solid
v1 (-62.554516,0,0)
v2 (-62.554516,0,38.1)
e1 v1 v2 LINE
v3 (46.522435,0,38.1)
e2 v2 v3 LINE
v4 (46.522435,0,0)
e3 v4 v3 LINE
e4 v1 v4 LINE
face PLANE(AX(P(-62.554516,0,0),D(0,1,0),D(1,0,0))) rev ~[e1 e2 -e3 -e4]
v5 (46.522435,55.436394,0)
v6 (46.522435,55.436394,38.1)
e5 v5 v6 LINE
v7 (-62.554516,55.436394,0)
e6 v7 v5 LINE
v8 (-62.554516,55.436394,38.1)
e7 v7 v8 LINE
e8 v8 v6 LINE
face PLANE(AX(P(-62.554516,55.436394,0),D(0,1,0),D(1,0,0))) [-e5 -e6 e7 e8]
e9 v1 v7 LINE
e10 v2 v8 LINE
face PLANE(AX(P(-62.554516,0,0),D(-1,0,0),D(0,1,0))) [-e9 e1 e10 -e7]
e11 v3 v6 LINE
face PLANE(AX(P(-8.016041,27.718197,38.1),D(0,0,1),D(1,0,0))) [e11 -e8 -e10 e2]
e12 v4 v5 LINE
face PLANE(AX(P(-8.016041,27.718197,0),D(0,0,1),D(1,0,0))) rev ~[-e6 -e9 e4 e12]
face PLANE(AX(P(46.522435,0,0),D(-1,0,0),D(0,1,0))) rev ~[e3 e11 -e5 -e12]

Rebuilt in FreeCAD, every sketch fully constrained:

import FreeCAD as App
import Part
import Sketcher
Q = App.Units.Quantity


def add_polygon(sketch, points):
    """Adds a closed chain of lines whose ends are joined by coincident constraints."""
    first, n = sketch.GeometryCount, len(points)
    for a, b in zip(points, points[1:] + points[:1]):
        sketch.addGeometry(Part.LineSegment(App.Vector(*a, 0), App.Vector(*b, 0)), False)
    for i in range(n):
        sketch.addConstraint(Sketcher.Constraint("Coincident", first + i, 2, first + (i + 1) % n, 1))

doc = App.newDocument("Part")
body = doc.addObject("PartDesign::Body", "Body")

# Sketch on XY plane
sketch1 = body.newObject("Sketcher::SketchObject", "Sketch")
sketch1.AttachmentSupport = (doc.getObject("XY_Plane"), [""])
sketch1.MapMode = "FlatFace"
add_polygon(sketch1, [(-63, 55), (-63, 0), (47, 0), (47, 55)])  # lines 0-3
sketch1.addConstraint(Sketcher.Constraint("Vertical", 0))
sketch1.addConstraint(Sketcher.Constraint("Horizontal", 1))
sketch1.addConstraint(Sketcher.Constraint("Vertical", 2))
sketch1.addConstraint(Sketcher.Constraint("Horizontal", 3))
sketch1.addConstraint(Sketcher.Constraint("PointOnObject", 0, 2, -1))
sketch1.addConstraint(Sketcher.Constraint("DistanceX", 1, 1, 1, 2, Q("109.076951 mm")))
sketch1.addConstraint(Sketcher.Constraint("DistanceY", 0, 2, 0, 1, Q("55.436395 mm")))
sketch1.addConstraint(Sketcher.Constraint("DistanceX", 0, 2, -1, 1, Q("62.554516 mm")))
pad1 = body.newObject("PartDesign::Pad", "Pad")
pad1.Profile = sketch1
pad1.Length = Q("1.5 in")
body2 = doc.addObject("PartDesign::Body", "Body001")

# Sketch on YZ plane
sketch2 = body2.newObject("Sketcher::SketchObject", "Sketch001")
sketch2.AttachmentSupport = (doc.getObject("YZ_Plane001"), [""])
sketch2.MapMode = "FlatFace"
add_polygon(sketch2, [(14, 59), (25, 40), (36, 59)])  # lines 0-2
sketch2.addConstraint(Sketcher.Constraint("Horizontal", 2))
sketch2.addConstraint(Sketcher.Constraint("Equal", 0, 1))
sketch2.addConstraint(Sketcher.Constraint("Angle", 0, Q("-60 deg")))
sketch2.addConstraint(Sketcher.Constraint("DistanceY", 0, 2, 1, 2, Q("19.3054 mm")))
sketch2.addConstraint(Sketcher.Constraint("DistanceX", -1, 1, 0, 2, Q("24.832965 mm")))
sketch2.addConstraint(Sketcher.Constraint("DistanceY", -1, 1, 0, 2, Q("39.895144 mm")))
pad2 = body2.newObject("PartDesign::Pad", "Pad001")
pad2.Profile = sketch2
pad2.Length = Q("1.25 in")
doc.recompute()

boolean = body.newObject("PartDesign::Boolean", "Boolean")
boolean.Type = "Cut"
boolean.addObjects([body2])

doc.recompute()
